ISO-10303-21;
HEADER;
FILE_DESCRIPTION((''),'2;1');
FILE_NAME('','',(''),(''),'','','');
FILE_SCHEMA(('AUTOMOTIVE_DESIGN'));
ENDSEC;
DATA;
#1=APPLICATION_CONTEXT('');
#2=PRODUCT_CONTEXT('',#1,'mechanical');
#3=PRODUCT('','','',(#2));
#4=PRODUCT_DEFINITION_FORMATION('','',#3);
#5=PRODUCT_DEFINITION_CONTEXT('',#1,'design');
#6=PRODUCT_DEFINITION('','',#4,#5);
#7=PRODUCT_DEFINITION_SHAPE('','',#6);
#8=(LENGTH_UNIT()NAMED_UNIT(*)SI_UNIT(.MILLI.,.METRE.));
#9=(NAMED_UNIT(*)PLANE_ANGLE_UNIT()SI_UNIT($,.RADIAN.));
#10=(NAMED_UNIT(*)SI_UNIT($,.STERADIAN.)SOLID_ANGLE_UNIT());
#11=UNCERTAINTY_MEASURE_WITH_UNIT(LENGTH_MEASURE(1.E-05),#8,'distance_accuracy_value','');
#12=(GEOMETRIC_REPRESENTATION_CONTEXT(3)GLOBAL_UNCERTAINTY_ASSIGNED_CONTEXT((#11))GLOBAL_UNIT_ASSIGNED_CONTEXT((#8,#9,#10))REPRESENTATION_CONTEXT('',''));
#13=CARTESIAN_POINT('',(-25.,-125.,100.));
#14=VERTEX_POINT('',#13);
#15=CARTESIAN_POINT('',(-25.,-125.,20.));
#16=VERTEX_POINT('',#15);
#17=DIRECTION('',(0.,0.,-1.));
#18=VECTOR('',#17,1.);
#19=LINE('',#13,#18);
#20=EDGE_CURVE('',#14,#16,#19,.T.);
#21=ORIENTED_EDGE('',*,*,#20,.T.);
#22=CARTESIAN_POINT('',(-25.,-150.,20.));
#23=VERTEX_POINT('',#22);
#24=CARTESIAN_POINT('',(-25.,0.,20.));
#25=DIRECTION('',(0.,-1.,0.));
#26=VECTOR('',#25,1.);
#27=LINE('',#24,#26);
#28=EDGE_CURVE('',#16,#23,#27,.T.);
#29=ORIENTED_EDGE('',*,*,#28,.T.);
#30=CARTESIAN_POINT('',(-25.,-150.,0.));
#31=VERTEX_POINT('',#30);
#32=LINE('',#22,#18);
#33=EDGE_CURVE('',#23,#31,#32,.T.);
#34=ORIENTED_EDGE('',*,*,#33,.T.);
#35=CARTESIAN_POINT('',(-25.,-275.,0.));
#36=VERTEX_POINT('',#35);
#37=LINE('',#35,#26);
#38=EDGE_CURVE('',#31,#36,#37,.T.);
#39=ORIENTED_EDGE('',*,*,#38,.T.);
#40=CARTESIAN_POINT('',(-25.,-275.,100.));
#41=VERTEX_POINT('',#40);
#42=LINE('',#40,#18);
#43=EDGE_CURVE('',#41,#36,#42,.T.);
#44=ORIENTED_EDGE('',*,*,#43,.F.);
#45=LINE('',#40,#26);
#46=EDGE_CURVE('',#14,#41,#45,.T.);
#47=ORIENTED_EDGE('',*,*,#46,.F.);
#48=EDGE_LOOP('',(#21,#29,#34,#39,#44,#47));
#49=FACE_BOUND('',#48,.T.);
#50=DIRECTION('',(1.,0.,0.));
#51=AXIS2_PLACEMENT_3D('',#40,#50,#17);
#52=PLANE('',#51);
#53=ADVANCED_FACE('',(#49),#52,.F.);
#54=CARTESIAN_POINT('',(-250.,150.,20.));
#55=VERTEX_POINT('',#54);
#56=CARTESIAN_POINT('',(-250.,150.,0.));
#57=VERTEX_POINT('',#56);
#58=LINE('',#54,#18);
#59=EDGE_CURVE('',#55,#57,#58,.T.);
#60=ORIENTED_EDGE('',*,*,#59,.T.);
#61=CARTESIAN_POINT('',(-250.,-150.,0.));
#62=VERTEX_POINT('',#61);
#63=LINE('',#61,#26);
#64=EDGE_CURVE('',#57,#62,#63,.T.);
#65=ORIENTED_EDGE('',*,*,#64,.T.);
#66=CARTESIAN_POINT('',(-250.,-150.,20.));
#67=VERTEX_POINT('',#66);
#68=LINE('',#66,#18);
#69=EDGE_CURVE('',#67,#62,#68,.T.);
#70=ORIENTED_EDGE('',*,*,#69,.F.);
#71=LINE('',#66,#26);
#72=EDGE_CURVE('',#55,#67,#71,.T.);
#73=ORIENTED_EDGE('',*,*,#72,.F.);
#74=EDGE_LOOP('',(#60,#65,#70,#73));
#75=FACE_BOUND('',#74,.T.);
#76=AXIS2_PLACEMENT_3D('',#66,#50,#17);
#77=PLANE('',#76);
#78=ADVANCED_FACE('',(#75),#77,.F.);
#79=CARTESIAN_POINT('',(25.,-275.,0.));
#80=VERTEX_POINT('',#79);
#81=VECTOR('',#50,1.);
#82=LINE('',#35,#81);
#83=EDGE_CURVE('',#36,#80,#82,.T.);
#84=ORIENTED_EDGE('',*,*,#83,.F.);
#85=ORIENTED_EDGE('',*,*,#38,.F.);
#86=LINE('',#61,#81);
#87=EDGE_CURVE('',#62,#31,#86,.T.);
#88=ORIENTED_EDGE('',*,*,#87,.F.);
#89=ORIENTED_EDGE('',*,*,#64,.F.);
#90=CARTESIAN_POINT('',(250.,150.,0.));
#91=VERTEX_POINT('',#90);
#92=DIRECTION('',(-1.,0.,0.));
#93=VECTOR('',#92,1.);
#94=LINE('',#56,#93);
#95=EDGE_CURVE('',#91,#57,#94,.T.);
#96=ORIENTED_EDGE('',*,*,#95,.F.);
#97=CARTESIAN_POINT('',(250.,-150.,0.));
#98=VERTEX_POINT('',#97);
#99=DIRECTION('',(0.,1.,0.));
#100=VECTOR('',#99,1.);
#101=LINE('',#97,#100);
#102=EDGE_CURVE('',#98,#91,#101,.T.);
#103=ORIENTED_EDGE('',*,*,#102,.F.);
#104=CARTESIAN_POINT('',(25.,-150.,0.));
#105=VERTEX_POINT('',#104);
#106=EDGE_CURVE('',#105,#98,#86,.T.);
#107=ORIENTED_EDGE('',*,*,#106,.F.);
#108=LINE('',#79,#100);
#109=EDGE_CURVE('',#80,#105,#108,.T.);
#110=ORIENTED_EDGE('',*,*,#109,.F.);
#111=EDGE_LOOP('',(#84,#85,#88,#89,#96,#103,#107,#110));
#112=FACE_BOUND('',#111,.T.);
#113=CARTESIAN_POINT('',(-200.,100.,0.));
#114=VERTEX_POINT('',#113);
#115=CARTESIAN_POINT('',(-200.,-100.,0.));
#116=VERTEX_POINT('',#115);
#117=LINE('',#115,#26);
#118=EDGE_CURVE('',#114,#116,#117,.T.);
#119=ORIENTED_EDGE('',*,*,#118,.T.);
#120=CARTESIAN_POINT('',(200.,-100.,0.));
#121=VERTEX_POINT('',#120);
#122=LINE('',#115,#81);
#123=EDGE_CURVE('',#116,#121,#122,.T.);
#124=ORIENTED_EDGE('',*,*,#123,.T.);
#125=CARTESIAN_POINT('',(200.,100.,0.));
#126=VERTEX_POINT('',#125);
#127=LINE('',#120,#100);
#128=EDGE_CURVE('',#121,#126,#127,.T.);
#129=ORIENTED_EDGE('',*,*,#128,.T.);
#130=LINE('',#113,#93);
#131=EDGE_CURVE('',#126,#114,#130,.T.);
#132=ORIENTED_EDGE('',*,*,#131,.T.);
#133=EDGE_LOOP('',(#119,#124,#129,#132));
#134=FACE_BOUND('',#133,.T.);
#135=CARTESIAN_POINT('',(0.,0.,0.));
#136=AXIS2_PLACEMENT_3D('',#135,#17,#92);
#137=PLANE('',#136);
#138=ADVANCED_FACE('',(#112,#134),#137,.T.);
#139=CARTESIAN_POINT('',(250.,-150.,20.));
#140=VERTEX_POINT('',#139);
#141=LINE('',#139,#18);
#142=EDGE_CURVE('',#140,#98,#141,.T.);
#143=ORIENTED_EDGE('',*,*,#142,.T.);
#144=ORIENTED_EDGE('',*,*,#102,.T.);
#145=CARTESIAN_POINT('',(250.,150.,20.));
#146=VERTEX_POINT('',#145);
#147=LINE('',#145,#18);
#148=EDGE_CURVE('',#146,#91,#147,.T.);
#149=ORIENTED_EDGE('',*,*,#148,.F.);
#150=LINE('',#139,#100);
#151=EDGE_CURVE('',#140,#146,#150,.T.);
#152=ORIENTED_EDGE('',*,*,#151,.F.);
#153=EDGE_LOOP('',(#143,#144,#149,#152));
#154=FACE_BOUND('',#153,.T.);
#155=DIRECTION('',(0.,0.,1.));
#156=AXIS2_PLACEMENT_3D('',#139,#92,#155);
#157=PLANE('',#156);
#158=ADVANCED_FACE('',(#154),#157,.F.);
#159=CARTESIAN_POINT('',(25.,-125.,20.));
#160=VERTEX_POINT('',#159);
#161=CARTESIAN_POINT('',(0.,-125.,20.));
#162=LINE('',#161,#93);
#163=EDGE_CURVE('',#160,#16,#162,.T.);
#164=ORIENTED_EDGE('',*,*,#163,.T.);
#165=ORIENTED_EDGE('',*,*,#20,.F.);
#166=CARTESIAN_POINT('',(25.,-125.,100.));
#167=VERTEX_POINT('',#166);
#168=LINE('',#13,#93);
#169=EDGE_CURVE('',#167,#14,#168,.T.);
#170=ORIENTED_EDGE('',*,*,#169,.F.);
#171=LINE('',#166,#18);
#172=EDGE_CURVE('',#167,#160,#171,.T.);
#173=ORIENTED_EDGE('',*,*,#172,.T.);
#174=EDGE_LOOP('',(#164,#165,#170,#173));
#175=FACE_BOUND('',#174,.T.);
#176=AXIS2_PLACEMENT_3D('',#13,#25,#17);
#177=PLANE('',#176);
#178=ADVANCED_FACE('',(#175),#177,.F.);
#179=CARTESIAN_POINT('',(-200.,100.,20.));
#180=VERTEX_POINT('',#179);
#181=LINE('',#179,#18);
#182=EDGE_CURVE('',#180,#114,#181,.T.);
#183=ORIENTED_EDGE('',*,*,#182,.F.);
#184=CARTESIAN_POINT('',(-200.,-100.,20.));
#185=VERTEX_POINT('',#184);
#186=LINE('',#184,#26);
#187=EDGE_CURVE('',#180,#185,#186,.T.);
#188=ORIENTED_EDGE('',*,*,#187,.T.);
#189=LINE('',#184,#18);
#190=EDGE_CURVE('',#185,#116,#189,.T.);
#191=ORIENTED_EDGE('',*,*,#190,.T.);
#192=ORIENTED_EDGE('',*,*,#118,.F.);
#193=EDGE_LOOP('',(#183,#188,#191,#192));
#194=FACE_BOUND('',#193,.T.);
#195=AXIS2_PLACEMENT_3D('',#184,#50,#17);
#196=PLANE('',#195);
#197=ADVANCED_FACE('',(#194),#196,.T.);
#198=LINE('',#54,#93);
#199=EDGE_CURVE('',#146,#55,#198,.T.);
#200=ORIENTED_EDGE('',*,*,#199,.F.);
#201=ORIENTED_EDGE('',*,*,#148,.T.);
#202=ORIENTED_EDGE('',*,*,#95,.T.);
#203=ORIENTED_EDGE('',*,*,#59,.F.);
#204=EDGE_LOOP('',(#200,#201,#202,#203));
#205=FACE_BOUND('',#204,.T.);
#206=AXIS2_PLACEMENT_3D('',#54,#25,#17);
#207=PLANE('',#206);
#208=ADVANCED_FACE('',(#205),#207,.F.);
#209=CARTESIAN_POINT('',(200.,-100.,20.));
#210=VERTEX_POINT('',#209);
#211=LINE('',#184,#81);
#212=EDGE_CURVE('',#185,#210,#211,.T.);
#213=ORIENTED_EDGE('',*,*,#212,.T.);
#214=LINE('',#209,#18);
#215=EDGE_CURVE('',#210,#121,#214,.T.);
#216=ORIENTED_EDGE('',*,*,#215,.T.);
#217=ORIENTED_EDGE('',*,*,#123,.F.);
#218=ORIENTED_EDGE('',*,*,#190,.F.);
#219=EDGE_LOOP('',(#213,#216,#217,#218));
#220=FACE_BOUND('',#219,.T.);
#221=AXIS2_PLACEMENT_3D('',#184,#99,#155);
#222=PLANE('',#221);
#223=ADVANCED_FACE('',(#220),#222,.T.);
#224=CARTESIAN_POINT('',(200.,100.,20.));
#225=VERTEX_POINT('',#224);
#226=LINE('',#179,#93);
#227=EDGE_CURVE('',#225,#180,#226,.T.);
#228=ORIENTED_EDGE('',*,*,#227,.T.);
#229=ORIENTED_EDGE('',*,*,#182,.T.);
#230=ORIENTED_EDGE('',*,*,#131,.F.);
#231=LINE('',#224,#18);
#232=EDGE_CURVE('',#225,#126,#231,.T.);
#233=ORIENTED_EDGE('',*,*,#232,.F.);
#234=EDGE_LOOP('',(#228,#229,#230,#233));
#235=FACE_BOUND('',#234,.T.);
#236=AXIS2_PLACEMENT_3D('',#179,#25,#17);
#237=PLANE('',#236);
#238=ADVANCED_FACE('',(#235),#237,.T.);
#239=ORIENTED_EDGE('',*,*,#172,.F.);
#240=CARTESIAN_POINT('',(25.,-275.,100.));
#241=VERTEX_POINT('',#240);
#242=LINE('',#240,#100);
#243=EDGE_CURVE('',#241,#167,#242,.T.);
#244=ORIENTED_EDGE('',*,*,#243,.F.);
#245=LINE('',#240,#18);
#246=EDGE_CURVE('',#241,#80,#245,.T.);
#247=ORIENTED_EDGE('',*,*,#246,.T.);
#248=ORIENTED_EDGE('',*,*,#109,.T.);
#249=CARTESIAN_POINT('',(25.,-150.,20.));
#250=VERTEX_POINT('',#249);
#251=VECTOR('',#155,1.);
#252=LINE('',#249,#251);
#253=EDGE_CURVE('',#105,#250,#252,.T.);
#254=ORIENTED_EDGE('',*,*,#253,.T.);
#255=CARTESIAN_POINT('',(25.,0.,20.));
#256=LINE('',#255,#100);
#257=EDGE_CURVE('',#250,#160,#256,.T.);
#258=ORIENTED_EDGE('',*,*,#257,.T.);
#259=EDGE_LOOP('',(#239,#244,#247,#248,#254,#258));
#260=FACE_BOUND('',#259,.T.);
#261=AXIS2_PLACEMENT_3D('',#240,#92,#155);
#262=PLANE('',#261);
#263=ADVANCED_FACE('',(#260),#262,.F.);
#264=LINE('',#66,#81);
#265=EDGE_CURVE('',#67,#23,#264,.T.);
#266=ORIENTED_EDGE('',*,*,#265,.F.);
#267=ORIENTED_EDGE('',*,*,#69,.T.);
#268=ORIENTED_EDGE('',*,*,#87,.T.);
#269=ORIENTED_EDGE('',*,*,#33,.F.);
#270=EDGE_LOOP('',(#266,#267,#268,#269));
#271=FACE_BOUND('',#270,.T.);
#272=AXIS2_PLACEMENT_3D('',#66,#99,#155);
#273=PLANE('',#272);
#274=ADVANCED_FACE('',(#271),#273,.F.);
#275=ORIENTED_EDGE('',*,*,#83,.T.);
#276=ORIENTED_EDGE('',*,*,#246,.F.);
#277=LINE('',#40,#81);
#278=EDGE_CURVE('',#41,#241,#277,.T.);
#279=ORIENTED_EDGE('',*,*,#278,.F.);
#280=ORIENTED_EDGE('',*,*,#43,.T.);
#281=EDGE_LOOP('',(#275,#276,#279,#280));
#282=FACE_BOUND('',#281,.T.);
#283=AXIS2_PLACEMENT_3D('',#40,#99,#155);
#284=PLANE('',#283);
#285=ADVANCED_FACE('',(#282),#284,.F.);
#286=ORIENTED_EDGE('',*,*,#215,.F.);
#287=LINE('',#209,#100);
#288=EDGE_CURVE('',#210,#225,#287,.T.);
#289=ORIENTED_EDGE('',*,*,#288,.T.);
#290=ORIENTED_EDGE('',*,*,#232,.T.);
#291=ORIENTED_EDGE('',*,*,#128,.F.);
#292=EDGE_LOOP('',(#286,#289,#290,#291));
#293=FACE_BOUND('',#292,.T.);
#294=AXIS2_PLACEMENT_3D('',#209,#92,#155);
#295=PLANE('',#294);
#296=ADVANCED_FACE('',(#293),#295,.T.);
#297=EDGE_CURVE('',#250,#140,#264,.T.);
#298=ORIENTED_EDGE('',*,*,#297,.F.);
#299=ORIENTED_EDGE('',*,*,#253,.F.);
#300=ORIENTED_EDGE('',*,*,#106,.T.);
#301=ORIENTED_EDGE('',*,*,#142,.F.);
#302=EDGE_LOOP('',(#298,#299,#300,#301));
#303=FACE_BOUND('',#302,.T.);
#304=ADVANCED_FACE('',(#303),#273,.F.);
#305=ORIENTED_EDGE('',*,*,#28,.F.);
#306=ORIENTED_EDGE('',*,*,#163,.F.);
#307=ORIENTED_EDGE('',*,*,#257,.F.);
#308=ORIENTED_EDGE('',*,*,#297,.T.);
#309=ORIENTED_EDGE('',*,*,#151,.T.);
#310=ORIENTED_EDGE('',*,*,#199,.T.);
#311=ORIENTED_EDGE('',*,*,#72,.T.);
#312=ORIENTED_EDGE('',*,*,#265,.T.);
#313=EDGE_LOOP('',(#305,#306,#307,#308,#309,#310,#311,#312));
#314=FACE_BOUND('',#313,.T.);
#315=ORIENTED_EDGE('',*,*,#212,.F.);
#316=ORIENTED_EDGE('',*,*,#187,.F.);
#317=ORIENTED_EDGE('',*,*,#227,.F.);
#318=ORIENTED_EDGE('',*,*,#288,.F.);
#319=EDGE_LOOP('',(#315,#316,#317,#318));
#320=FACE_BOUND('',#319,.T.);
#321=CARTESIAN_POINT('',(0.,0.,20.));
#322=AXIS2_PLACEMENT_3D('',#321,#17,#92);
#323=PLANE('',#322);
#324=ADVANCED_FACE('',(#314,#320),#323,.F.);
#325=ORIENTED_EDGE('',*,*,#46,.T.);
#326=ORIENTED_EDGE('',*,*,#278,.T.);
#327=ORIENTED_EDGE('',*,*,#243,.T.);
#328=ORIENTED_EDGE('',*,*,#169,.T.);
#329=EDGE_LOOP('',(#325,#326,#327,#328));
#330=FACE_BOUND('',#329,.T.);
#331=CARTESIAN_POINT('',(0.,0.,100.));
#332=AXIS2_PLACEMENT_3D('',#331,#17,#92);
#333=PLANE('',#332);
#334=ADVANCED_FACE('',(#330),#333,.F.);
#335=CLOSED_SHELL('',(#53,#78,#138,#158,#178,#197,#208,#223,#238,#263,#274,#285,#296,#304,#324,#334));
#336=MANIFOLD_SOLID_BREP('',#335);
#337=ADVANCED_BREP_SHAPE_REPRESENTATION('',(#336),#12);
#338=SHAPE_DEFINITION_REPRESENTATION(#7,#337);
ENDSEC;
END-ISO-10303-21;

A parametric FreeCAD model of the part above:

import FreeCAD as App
import Part
import Sketcher
Q = App.Units.Quantity


def add_polygon(sketch, points):
    """Adds a closed chain of lines whose ends are joined by coincident constraints."""
    first, n = sketch.GeometryCount, len(points)
    for a, b in zip(points, points[1:] + points[:1]):
        sketch.addGeometry(Part.LineSegment(App.Vector(*a, 0), App.Vector(*b, 0)), False)
    for i in range(n):
        sketch.addConstraint(Sketcher.Constraint("Coincident", first + i, 2, first + (i + 1) % n, 1))

doc = App.newDocument("Part")
body = doc.addObject("PartDesign::Body", "Body")

# Sketch on XY plane
sketch1 = doc.addObject("Sketcher::SketchObject", "Sketch")
body.addObject(sketch1)
sketch1.AttachmentSupport = (doc.XY_Plane, [""])
sketch1.MapMode = "FlatFace"
add_polygon(sketch1, [(-250, 150), (-250, -150), (250, -150), (250, 150)])  # lines 0-3
sketch1.addConstraint(Sketcher.Constraint("Vertical", 0))
sketch1.addConstraint(Sketcher.Constraint("Horizontal", 1))
sketch1.addConstraint(Sketcher.Constraint("Vertical", 2))
sketch1.addConstraint(Sketcher.Constraint("Horizontal", 3))
sketch1.addConstraint(Sketcher.Constraint("Symmetric", 0, 2, 2, 2, -1, 1))
sketch1.addConstraint(Sketcher.Constraint("DistanceX", 1, 1, 1, 2, Q("500 mm")))
sketch1.addConstraint(Sketcher.Constraint("DistanceY", 0, 2, 0, 1, Q("300 mm")))
pad1 = doc.addObject("PartDesign::Pad", "Pad")
body.addObject(pad1)
pad1.Profile = sketch1
pad1.Length = 20

# Sketch on XY plane
sketch2 = doc.addObject("Sketcher::SketchObject", "Sketch001")
body.addObject(sketch2)
sketch2.AttachmentSupport = (doc.XY_Plane, [""])
sketch2.MapMode = "FlatFace"
add_polygon(sketch2, [(-225, 125), (-225, -125), (225, -125), (225, 125)])  # lines 0-3
sketch2.addConstraint(Sketcher.Constraint("Vertical", 0))
sketch2.addConstraint(Sketcher.Constraint("Horizontal", 1))
sketch2.addConstraint(Sketcher.Constraint("Vertical", 2))
sketch2.addConstraint(Sketcher.Constraint("Horizontal", 3))
sketch2.addConstraint(Sketcher.Constraint("Symmetric", 0, 2, 2, 2, -1, 1))
sketch2.addConstraint(Sketcher.Constraint("DistanceX", 1, 1, 1, 2, Q("450 mm")))
sketch2.addConstraint(Sketcher.Constraint("DistanceY", 0, 2, 0, 1, Q("250 mm")))
pad2 = doc.addObject("PartDesign::Pad", "Pad001")
body.addObject(pad2)
pad2.Profile = sketch2
pad2.Length = 10

# Sketch on XY plane
sketch3 = doc.addObject("Sketcher::SketchObject", "Sketch002")
body.addObject(sketch3)
sketch3.AttachmentSupport = (doc.XY_Plane, [""])
sketch3.MapMode = "FlatFace"
add_polygon(sketch3, [(-200, 100), (-200, -100), (200, -100), (200, 100)])  # lines 0-3
sketch3.addConstraint(Sketcher.Constraint("Vertical", 0))
sketch3.addConstraint(Sketcher.Constraint("Horizontal", 1))
sketch3.addConstraint(Sketcher.Constraint("Vertical", 2))
sketch3.addConstraint(Sketcher.Constraint("Horizontal", 3))
sketch3.addConstraint(Sketcher.Constraint("Symmetric", 0, 2, 2, 2, -1, 1))
sketch3.addConstraint(Sketcher.Constraint("DistanceX", 1, 1, 1, 2, Q("400 mm")))
sketch3.addConstraint(Sketcher.Constraint("DistanceY", 0, 2, 0, 1, Q("200 mm")))
pocket1 = doc.addObject("PartDesign::Pocket", "Pocket")
body.addObject(pocket1)
pocket1.Profile = sketch3
pocket1.Type = "ThroughAll"
pocket1.Reversed = True

# Sketch on XY plane
sketch4 = doc.addObject("Sketcher::SketchObject", "Sketch003")
body.addObject(sketch4)
sketch4.AttachmentSupport = (doc.XY_Plane, [""])
sketch4.MapMode = "FlatFace"
add_polygon(sketch4, [(-25, -125), (-25, -275), (25, -275), (25, -125)])  # lines 0-3
sketch4.addConstraint(Sketcher.Constraint("Vertical", 0))
sketch4.addConstraint(Sketcher.Constraint("Horizontal", 1))
sketch4.addConstraint(Sketcher.Constraint("Vertical", 2))
sketch4.addConstraint(Sketcher.Constraint("Horizontal", 3))
sketch4.addConstraint(Sketcher.Constraint("DistanceX", 1, 1, 1, 2, Q("50 mm")))
sketch4.addConstraint(Sketcher.Constraint("DistanceY", 0, 2, 0, 1, Q("150 mm")))
sketch4.addConstraint(Sketcher.Constraint("DistanceX", 0, 2, -1, 1, Q("25 mm")))
sketch4.addConstraint(Sketcher.Constraint("DistanceY", 0, 2, -1, 1, Q("275 mm")))
pad3 = doc.addObject("PartDesign::Pad", "Pad002")
body.addObject(pad3)
pad3.Profile = sketch4
pad3.Length = 100

doc.recompute()
